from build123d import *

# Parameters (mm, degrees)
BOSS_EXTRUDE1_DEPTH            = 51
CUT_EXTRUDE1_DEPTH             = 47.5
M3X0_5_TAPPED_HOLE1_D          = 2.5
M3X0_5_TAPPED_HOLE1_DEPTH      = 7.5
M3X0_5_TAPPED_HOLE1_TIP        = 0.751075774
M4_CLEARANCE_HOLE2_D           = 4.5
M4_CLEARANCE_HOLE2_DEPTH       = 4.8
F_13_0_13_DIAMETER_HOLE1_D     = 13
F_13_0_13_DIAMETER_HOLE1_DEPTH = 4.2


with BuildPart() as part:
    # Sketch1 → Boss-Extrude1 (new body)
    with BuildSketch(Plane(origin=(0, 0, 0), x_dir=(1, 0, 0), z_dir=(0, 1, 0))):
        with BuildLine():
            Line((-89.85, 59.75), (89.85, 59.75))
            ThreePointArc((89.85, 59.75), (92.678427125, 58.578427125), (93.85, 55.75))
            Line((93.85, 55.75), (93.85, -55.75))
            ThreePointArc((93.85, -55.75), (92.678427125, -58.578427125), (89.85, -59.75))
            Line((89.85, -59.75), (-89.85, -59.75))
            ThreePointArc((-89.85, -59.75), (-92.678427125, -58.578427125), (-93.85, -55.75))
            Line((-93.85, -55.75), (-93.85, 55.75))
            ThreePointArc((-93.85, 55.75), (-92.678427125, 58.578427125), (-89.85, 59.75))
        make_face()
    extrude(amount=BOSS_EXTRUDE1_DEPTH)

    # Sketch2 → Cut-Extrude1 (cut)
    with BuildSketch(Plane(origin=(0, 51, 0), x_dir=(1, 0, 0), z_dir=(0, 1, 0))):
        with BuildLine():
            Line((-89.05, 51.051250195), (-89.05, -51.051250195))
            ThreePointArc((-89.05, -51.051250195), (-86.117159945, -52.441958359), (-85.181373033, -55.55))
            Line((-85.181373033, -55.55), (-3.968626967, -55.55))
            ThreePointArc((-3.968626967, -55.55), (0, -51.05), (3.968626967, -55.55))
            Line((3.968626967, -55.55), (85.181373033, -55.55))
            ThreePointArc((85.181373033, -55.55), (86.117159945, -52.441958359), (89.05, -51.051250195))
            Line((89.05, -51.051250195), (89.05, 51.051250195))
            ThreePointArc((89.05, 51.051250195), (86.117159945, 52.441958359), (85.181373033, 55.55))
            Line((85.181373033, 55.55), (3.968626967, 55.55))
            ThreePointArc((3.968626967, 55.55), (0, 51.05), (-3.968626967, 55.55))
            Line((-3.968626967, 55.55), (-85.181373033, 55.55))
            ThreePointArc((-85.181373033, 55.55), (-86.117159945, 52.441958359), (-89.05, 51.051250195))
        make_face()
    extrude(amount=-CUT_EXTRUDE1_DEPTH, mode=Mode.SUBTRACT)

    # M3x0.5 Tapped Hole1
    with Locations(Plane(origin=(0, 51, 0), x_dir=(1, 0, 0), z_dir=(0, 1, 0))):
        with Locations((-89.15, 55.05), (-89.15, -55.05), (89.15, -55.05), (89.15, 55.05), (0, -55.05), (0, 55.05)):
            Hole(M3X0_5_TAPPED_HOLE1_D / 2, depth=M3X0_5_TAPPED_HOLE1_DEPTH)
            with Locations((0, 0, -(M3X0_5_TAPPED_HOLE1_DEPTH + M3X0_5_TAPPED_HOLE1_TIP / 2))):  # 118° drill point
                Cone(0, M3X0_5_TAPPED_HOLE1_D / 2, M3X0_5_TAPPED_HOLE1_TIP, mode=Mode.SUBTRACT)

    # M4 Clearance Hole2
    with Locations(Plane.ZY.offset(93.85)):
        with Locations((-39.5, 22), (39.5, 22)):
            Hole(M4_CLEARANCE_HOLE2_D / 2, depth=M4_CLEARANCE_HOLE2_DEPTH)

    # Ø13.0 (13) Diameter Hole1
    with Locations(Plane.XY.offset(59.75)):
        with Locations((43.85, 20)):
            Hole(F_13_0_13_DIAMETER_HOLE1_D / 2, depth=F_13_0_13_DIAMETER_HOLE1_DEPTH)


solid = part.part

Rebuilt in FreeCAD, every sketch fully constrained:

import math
import FreeCAD as App
import Part
import Sketcher
from FreeCAD import Vector
Q = App.Units.Quantity

doc = App.newDocument("Part")
body = doc.addObject("PartDesign::Body", "Body")

# Sketch on XZ plane
sketch1 = body.newObject("Sketcher::SketchObject", "Sketch")
sketch1.AttachmentSupport = (doc.getObject("XZ_Plane"), [""])
sketch1.MapMode = "FlatFace"
sketch1.addGeometry(Part.LineSegment(Vector(89.8, -59.8, 0), Vector(-89.8, -59.8, 0)), False)
sketch1.addGeometry(Part.ArcOfCircle(Part.Circle(Vector(-89.9, -55.8, 0), Vector(0, 0, 1), 4), math.radians(180), math.radians(270)), False)
sketch1.addGeometry(Part.LineSegment(Vector(-93.8, -55.8, 0), Vector(-93.8, 55.8, 0)), False)
sketch1.addGeometry(Part.ArcOfCircle(Part.Circle(Vector(-89.9, 55.8, 0), Vector(0, 0, 1), 4), math.radians(90), math.radians(180)), False)
sketch1.addGeometry(Part.LineSegment(Vector(-89.8, 59.8, 0), Vector(89.8, 59.8, 0)), False)
sketch1.addGeometry(Part.ArcOfCircle(Part.Circle(Vector(89.9, 55.8, 0), Vector(0, 0, 1), 4), math.radians(0), math.radians(90)), False)
sketch1.addGeometry(Part.LineSegment(Vector(93.8, 55.8, 0), Vector(93.8, -55.8, 0)), False)
sketch1.addGeometry(Part.ArcOfCircle(Part.Circle(Vector(89.9, -55.8, 0), Vector(0, 0, 1), 4), math.radians(-90), math.radians(0)), False)
sketch1.addConstraint(Sketcher.Constraint("Tangent", 0, 2, 1, 2))
sketch1.addConstraint(Sketcher.Constraint("Tangent", 1, 1, 2, 1))
sketch1.addConstraint(Sketcher.Constraint("Tangent", 2, 2, 3, 2))
sketch1.addConstraint(Sketcher.Constraint("Tangent", 3, 1, 4, 1))
sketch1.addConstraint(Sketcher.Constraint("Tangent", 4, 2, 5, 2))
sketch1.addConstraint(Sketcher.Constraint("Tangent", 5, 1, 6, 1))
sketch1.addConstraint(Sketcher.Constraint("Tangent", 6, 2, 7, 2))
sketch1.addConstraint(Sketcher.Constraint("Tangent", 7, 1, 0, 1))
sketch1.addConstraint(Sketcher.Constraint("Horizontal", 0))
sketch1.addConstraint(Sketcher.Constraint("Vertical", 2))
sketch1.addConstraint(Sketcher.Constraint("Horizontal", 4))
sketch1.addConstraint(Sketcher.Constraint("Vertical", 6))
sketch1.addConstraint(Sketcher.Constraint("Equal", 1, 3))
sketch1.addConstraint(Sketcher.Constraint("Equal", 3, 5))
sketch1.addConstraint(Sketcher.Constraint("Equal", 5, 7))
sketch1.addConstraint(Sketcher.Constraint("Symmetric", 1, 3, 5, 3, -1, 1))
sketch1.addConstraint(Sketcher.Constraint("Radius", 1, Q("4 mm")))
sketch1.addConstraint(Sketcher.Constraint("DistanceX", 0, 2, 0, 1, Q("179.7 mm")))
sketch1.addConstraint(Sketcher.Constraint("DistanceY", 2, 1, 2, 2, Q("111.5 mm")))
pad1 = body.newObject("PartDesign::Pad", "Pad")
pad1.Profile = sketch1
pad1.Length = 51
pad1.Reversed = True

# Sketch on XZ plane
sketch2 = body.newObject("Sketcher::SketchObject", "Sketch001")
sketch2.AttachmentSupport = (doc.getObject("XZ_Plane"), [""])
sketch2.MapMode = "FlatFace"
sketch2.AttachmentOffset = App.Placement(Vector(0, 0, -51), App.Rotation())
sketch2.addGeometry(Part.LineSegment(Vector(-89, -51.1, 0), Vector(-89, 51.1, 0)), False)
sketch2.addGeometry(Part.ArcOfCircle(Part.Circle(Vector(-89.2, 55.1, 0), Vector(0, 0, 1), 4), math.radians(-89), math.radians(7)), False)
sketch2.addGeometry(Part.LineSegment(Vector(-85.2, 55.5, 0), Vector(-4, 55.5, 0)), False)
sketch2.addGeometry(Part.ArcOfCircle(Part.Circle(Vector(0, 55, 0), Vector(0, 0, 1), 4), math.radians(173), math.radians(367)), False)
sketch2.addGeometry(Part.LineSegment(Vector(4, 55.5, 0), Vector(85.2, 55.5, 0)), False)
sketch2.addGeometry(Part.ArcOfCircle(Part.Circle(Vector(89.2, 55.1, 0), Vector(0, 0, 1), 4), math.radians(173), math.radians(269)), False)
sketch2.addGeometry(Part.LineSegment(Vector(89, 51.1, 0), Vector(89, -51.1, 0)), False)
sketch2.addGeometry(Part.ArcOfCircle(Part.Circle(Vector(89.2, -55.1, 0), Vector(0, 0, 1), 4), math.radians(91), math.radians(187)), False)
sketch2.addGeometry(Part.LineSegment(Vector(85.2, -55.5, 0), Vector(4, -55.5, 0)), False)
sketch2.addGeometry(Part.ArcOfCircle(Part.Circle(Vector(0, -55, 0), Vector(0, 0, 1), 4), math.radians(-7), math.radians(187)), False)
sketch2.addGeometry(Part.LineSegment(Vector(-4, -55.5, 0), Vector(-85.2, -55.5, 0)), False)
sketch2.addGeometry(Part.ArcOfCircle(Part.Circle(Vector(-89.2, -55.1, 0), Vector(0, 0, 1), 4), math.radians(-7), math.radians(89)), False)
sketch2.addConstraint(Sketcher.Constraint("Coincident", 0, 2, 1, 1))
sketch2.addConstraint(Sketcher.Constraint("Coincident", 1, 2, 2, 1))
sketch2.addConstraint(Sketcher.Constraint("Coincident", 2, 2, 3, 1))
sketch2.addConstraint(Sketcher.Constraint("Coincident", 3, 2, 4, 1))
sketch2.addConstraint(Sketcher.Constraint("Coincident", 4, 2, 5, 1))
sketch2.addConstraint(Sketcher.Constraint("Coincident", 5, 2, 6, 1))
sketch2.addConstraint(Sketcher.Constraint("Coincident", 6, 2, 7, 1))
sketch2.addConstraint(Sketcher.Constraint("Coincident", 7, 2, 8, 1))
sketch2.addConstraint(Sketcher.Constraint("Coincident", 8, 2, 9, 1))
sketch2.addConstraint(Sketcher.Constraint("Coincident", 9, 2, 10, 1))
sketch2.addConstraint(Sketcher.Constraint("Coincident", 10, 2, 11, 1))
sketch2.addConstraint(Sketcher.Constraint("Coincident", 11, 2, 0, 1))
sketch2.addConstraint(Sketcher.Constraint("Vertical", 0))
sketch2.addConstraint(Sketcher.Constraint("Horizontal", 2))
sketch2.addConstraint(Sketcher.Constraint("Horizontal", 4))
sketch2.addConstraint(Sketcher.Constraint("Vertical", 6))
sketch2.addConstraint(Sketcher.Constraint("Horizontal", 8))
sketch2.addConstraint(Sketcher.Constraint("Horizontal", 10))
sketch2.addConstraint(Sketcher.Constraint("Equal", 1, 3))
sketch2.addConstraint(Sketcher.Constraint("Equal", 3, 5))
sketch2.addConstraint(Sketcher.Constraint("Equal", 5, 7))
sketch2.addConstraint(Sketcher.Constraint("Equal", 7, 9))
sketch2.addConstraint(Sketcher.Constraint("Equal", 9, 11))
sketch2.addConstraint(Sketcher.Constraint("Symmetric", 1, 3, 7, 3, -1, 1))
sketch2.addConstraint(Sketcher.Constraint("Symmetric", 3, 3, 9, 3, -1, 1))
sketch2.addConstraint(Sketcher.Constraint("Symmetric", 5, 3, 11, 3, -1, 1))
sketch2.addConstraint(Sketcher.Constraint("Symmetric", 1, 3, 5, 3, -2))
sketch2.addConstraint(Sketcher.Constraint("Symmetric", 2, 2, 3, 2, -2))
sketch2.addConstraint(Sketcher.Constraint("Horizontal", 1, 3, 3, 3))
sketch2.addConstraint(Sketcher.Constraint("Horizontal", 0, 2, 5, 2))
sketch2.addConstraint(Sketcher.Constraint("Horizontal", 8, 2, 9, 2))
sketch2.addConstraint(Sketcher.Constraint("Vertical", 4, 2, 7, 2))
sketch2.addConstraint(Sketcher.Constraint("Radius", 1, Q("4 mm")))
sketch2.addConstraint(Sketcher.Constraint("DistanceX", 1, 3, 5, 3, Q("178.3 mm")))
sketch2.addConstraint(Sketcher.Constraint("DistanceY", 7, 3, 5, 3, Q("110.1 mm")))
sketch2.addConstraint(Sketcher.Constraint("DistanceX", 1, 3, 0, 2, Q("0.1 mm")))
sketch2.addConstraint(Sketcher.Constraint("DistanceY", 1, 3, 1, 2, Q("0.5 mm")))
pocket1 = body.newObject("PartDesign::Pocket", "Pocket")
pocket1.Profile = sketch2
pocket1.Length = 47.5
pocket1.Reversed = True

# Sketch on XZ plane
sketch3 = body.newObject("Sketcher::SketchObject", "Sketch002")
sketch3.AttachmentSupport = (doc.getObject("XZ_Plane"), [""])
sketch3.MapMode = "FlatFace"
sketch3.AttachmentOffset = App.Placement(Vector(0, 0, -51), App.Rotation())
sketch3.addGeometry(Part.Circle(Vector(-89.2, -55, 0), Vector(0, 0, 1), 1.2), False)
sketch3.addGeometry(Part.Circle(Vector(-89.2, 55, 0), Vector(0, 0, 1), 1.2), False)
sketch3.addGeometry(Part.Circle(Vector(89.2, 55, 0), Vector(0, 0, 1), 1.2), False)
sketch3.addGeometry(Part.Circle(Vector(89.2, -55, 0), Vector(0, 0, 1), 1.2), False)
sketch3.addGeometry(Part.Circle(Vector(0, 55, 0), Vector(0, 0, 1), 1.2), False)
sketch3.addGeometry(Part.Circle(Vector(0, -55, 0), Vector(0, 0, 1), 1.2), False)
sketch3.addConstraint(Sketcher.Constraint("Equal", 0, 1))
sketch3.addConstraint(Sketcher.Constraint("Equal", 1, 2))
sketch3.addConstraint(Sketcher.Constraint("Equal", 2, 3))
sketch3.addConstraint(Sketcher.Constraint("Equal", 3, 4))
sketch3.addConstraint(Sketcher.Constraint("Equal", 4, 5))
sketch3.addConstraint(Sketcher.Constraint("Symmetric", 0, 3, 2, 3, -1, 1))
sketch3.addConstraint(Sketcher.Constraint("Symmetric", 1, 3, 3, 3, -1, 1))
sketch3.addConstraint(Sketcher.Constraint("Symmetric", 4, 3, 5, 3, -1, 1))
sketch3.addConstraint(Sketcher.Constraint("Symmetric", 1, 3, 2, 3, -2))
sketch3.addConstraint(Sketcher.Constraint("PointOnObject", 4, 3, -2))
sketch3.addConstraint(Sketcher.Constraint("Horizontal", 2, 3, 4, 3))
sketch3.addConstraint(Sketcher.Constraint("Diameter", 0, Q("2.5 mm")))
sketch3.addConstraint(Sketcher.Constraint("DistanceY", 0, 3, 1, 3, Q("110.1 mm")))
sketch3.addConstraint(Sketcher.Constraint("DistanceX", 1, 3, 2, 3, Q("178.3 mm")))
doc.recompute()
hole = body.newObject("PartDesign::Hole", "Hole")
hole.Profile = sketch3
hole.ThreadType = "None"
hole.Diameter = 2.5
hole.DepthType = "Dimension"
hole.Depth = 7.5
hole.DrillPoint = "Angled"
hole.DrillPointAngle = 118
hole.Reversed = True

# Sketch on YZ plane
sketch4 = body.newObject("Sketcher::SketchObject", "Sketch003")
sketch4.AttachmentSupport = (doc.getObject("YZ_Plane"), [""])
sketch4.MapMode = "FlatFace"
sketch4.AttachmentOffset = App.Placement(Vector(0, 0, -93.85), App.Rotation())
sketch4.addGeometry(Part.Circle(Vector(22, -39.5, 0), Vector(0, 0, 1), 2.2), False)
sketch4.addGeometry(Part.Circle(Vector(22, 39.5, 0), Vector(0, 0, 1), 2.2), False)
sketch4.addConstraint(Sketcher.Constraint("Equal", 0, 1))
sketch4.addConstraint(Sketcher.Constraint("Symmetric", 0, 3, 1, 3, -1))
sketch4.addConstraint(Sketcher.Constraint("Diameter", 0, Q("4.5 mm")))
sketch4.addConstraint(Sketcher.Constraint("DistanceX", -1, 1, 0, 3, Q("22 mm")))
sketch4.addConstraint(Sketcher.Constraint("DistanceY", 0, 3, 1, 3, Q("79 mm")))
doc.recompute()
hole2 = body.newObject("PartDesign::Hole", "Hole001")
hole2.Profile = sketch4
hole2.ThreadType = "None"
hole2.Diameter = 4.5
hole2.DepthType = "Dimension"
hole2.Depth = 4.8
hole2.DrillPoint = "Flat"
hole2.Reversed = True

# Sketch on XY plane
sketch5 = body.newObject("Sketcher::SketchObject", "Sketch004")
sketch5.AttachmentSupport = (doc.getObject("XY_Plane"), [""])
sketch5.MapMode = "FlatFace"
sketch5.AttachmentOffset = App.Placement(Vector(0, 0, 59.75), App.Rotation())
sketch5.addGeometry(Part.Circle(Vector(44, 20, 0), Vector(0, 0, 1), 6), False)
sketch5.addConstraint(Sketcher.Constraint("Diameter", 0, Q("13 mm")))
sketch5.addConstraint(Sketcher.Constraint("DistanceY", -1, 1, 0, 3, Q("20 mm")))
sketch5.addConstraint(Sketcher.Constraint("DistanceX", -1, 1, 0, 3, Q("43.85 mm")))
doc.recompute()
hole3 = body.newObject("PartDesign::Hole", "Hole002")
hole3.Profile = sketch5
hole3.ThreadType = "None"
hole3.Diameter = 13
hole3.DepthType = "Dimension"
hole3.Depth = 4.2
hole3.DrillPoint = "Flat"

doc.recompute()
